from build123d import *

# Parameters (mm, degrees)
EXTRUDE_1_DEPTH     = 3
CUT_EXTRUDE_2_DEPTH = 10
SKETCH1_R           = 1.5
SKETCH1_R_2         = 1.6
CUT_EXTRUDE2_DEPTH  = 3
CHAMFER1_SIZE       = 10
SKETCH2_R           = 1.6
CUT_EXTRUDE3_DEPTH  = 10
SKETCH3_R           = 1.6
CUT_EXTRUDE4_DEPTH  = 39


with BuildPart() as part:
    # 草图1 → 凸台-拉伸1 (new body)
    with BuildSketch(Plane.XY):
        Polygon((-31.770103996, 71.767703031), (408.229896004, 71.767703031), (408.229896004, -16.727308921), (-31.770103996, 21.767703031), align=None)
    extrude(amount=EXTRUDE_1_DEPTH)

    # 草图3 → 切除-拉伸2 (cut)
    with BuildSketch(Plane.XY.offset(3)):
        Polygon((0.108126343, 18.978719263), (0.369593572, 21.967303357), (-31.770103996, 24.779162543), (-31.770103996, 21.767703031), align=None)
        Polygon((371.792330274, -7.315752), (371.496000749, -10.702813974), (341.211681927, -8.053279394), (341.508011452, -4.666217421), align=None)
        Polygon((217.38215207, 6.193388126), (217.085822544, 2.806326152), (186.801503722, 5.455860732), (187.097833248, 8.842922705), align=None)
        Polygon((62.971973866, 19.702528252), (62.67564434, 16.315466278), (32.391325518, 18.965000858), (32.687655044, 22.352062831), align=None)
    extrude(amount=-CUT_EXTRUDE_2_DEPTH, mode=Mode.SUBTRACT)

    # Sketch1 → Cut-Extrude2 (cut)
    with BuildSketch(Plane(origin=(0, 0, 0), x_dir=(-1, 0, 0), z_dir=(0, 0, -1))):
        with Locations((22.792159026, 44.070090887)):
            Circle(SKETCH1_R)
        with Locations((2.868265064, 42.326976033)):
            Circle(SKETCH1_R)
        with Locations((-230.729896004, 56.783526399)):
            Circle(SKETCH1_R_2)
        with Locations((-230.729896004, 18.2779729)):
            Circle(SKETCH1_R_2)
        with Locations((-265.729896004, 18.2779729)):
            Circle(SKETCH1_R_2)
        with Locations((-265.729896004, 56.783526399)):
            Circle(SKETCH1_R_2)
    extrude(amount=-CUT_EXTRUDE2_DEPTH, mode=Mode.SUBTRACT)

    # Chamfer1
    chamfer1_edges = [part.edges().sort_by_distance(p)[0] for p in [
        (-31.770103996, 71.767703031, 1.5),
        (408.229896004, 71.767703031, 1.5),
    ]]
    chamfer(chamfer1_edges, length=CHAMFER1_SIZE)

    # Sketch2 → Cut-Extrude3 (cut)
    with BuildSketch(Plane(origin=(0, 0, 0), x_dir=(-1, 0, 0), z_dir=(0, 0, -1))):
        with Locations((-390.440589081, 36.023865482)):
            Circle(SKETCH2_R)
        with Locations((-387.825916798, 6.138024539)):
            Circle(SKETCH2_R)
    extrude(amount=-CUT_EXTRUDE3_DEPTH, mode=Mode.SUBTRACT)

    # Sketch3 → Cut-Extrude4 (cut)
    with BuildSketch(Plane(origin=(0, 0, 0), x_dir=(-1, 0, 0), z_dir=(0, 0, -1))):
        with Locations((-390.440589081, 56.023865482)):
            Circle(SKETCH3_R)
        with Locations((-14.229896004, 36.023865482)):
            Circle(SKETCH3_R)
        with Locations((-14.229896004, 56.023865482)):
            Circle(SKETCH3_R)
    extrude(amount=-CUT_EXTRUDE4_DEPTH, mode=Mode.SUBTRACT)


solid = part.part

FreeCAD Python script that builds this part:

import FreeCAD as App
import Part
import Sketcher

V = App.Vector
Q = App.Units.Quantity


def edges_at(feature, points):
    """Names of the edges that pass closest to the given points."""
    edges = feature.Shape.Edges
    near = lambda p: min(range(len(edges)), key=lambda i: edges[i].distToShape(Part.Vertex(*p))[0])
    return sorted({f"Edge{near(p) + 1}" for p in points})

doc = App.newDocument("Part")
body = doc.addObject("PartDesign::Body", "Body")

# Sketch on XY plane
sketch1 = doc.addObject("Sketcher::SketchObject", "Sketch")
body.addObject(sketch1)
sketch1.AttachmentSupport = (doc.XY_Plane, [""])
sketch1.MapMode = "FlatFace"
sketch1.addGeometry(Part.LineSegment(V(408.229896, 71.767703, 0), V(-31.770104, 71.767703, 0)), False)
sketch1.addGeometry(Part.LineSegment(V(-31.770104, 71.767703, 0), V(-31.770104, 21.767703, 0)), False)
sketch1.addGeometry(Part.LineSegment(V(-31.770104, 21.767703, 0), V(408.229896, -16.727309, 0)), False)
sketch1.addGeometry(Part.LineSegment(V(408.229896, -16.727309, 0), V(408.229896, 71.767703, 0)), False)
sketch1.addConstraint(Sketcher.Constraint("Coincident", 0, 2, 1, 1))
sketch1.addConstraint(Sketcher.Constraint("Coincident", 1, 2, 2, 1))
sketch1.addConstraint(Sketcher.Constraint("Coincident", 2, 2, 3, 1))
sketch1.addConstraint(Sketcher.Constraint("Coincident", 3, 2, 0, 1))
sketch1.addConstraint(Sketcher.Constraint("Horizontal", 0))
sketch1.addConstraint(Sketcher.Constraint("Vertical", 1))
sketch1.addConstraint(Sketcher.Constraint("Vertical", 3))
sketch1.addConstraint(Sketcher.Constraint("DistanceX", 0, 2, 0, 1, 440.0))
sketch1.addConstraint(Sketcher.Constraint("DistanceY", 1, 2, 1, 1, 50.0))
sketch1.addConstraint(Sketcher.Constraint("Angle", 2, Q("-5 deg")))
sketch1.addConstraint(Sketcher.Constraint("DistanceY", 2, 2, -1, 1, 16.727309))
sketch1.addConstraint(Sketcher.Constraint("DistanceX", 0, 2, -1, 1, 31.770104))
pad1 = doc.addObject("PartDesign::Pad", "Pad")
body.addObject(pad1)
pad1.Profile = sketch1
pad1.Length = 3

# Sketch on XY plane
sketch2 = doc.addObject("Sketcher::SketchObject", "Sketch001")
body.addObject(sketch2)
sketch2.AttachmentSupport = (doc.XY_Plane, [""])
sketch2.MapMode = "FlatFace"
sketch2.AttachmentOffset = App.Placement(V(0, 0, 3), App.Rotation())
sketch2.addGeometry(Part.LineSegment(V(0.108126, 18.978719, 0), V(0.369594, 21.967303, 0)), False)
sketch2.addGeometry(Part.LineSegment(V(0.369594, 21.967303, 0), V(-31.770104, 24.779163, 0)), False)
sketch2.addGeometry(Part.LineSegment(V(-31.770104, 24.779163, 0), V(-31.770104, 21.767703, 0)), False)
sketch2.addGeometry(Part.LineSegment(V(-31.770104, 21.767703, 0), V(0.108126, 18.978719, 0)), False)
sketch2.addGeometry(Part.LineSegment(V(371.496001, -10.702814, 0), V(371.79233, -7.315752, 0)), False)
sketch2.addGeometry(Part.LineSegment(V(371.79233, -7.315752, 0), V(341.508011, -4.666217, 0)), False)
sketch2.addGeometry(Part.LineSegment(V(341.508011, -4.666217, 0), V(341.211682, -8.053279, 0)), False)
sketch2.addGeometry(Part.LineSegment(V(341.211682, -8.053279, 0), V(371.496001, -10.702814, 0)), False)
sketch2.addGeometry(Part.LineSegment(V(217.085823, 2.806326, 0), V(217.382152, 6.193388, 0)), False)
sketch2.addGeometry(Part.LineSegment(V(217.382152, 6.193388, 0), V(187.097833, 8.842923, 0)), False)
sketch2.addGeometry(Part.LineSegment(V(187.097833, 8.842923, 0), V(186.801504, 5.455861, 0)), False)
sketch2.addGeometry(Part.LineSegment(V(186.801504, 5.455861, 0), V(217.085823, 2.806326, 0)), False)
sketch2.addGeometry(Part.LineSegment(V(62.675644, 16.315466, 0), V(62.971974, 19.702528, 0)), False)
sketch2.addGeometry(Part.LineSegment(V(62.971974, 19.702528, 0), V(32.687655, 22.352063, 0)), False)
sketch2.addGeometry(Part.LineSegment(V(32.687655, 22.352063, 0), V(32.391326, 18.965001, 0)), False)
sketch2.addGeometry(Part.LineSegment(V(32.391326, 18.965001, 0), V(62.675644, 16.315466, 0)), False)
sketch2.addConstraint(Sketcher.Constraint("Coincident", 0, 2, 1, 1))
sketch2.addConstraint(Sketcher.Constraint("Coincident", 1, 2, 2, 1))
sketch2.addConstraint(Sketcher.Constraint("Coincident", 2, 2, 3, 1))
sketch2.addConstraint(Sketcher.Constraint("Coincident", 3, 2, 0, 1))
sketch2.addConstraint(Sketcher.Constraint("Coincident", 4, 2, 5, 1))
sketch2.addConstraint(Sketcher.Constraint("Coincident", 5, 2, 6, 1))
sketch2.addConstraint(Sketcher.Constraint("Coincident", 6, 2, 7, 1))
sketch2.addConstraint(Sketcher.Constraint("Coincident", 7, 2, 4, 1))
sketch2.addConstraint(Sketcher.Constraint("Coincident", 8, 2, 9, 1))
sketch2.addConstraint(Sketcher.Constraint("Coincident", 9, 2, 10, 1))
sketch2.addConstraint(Sketcher.Constraint("Coincident", 10, 2, 11, 1))
sketch2.addConstraint(Sketcher.Constraint("Coincident", 11, 2, 8, 1))
sketch2.addConstraint(Sketcher.Constraint("Coincident", 12, 2, 13, 1))
sketch2.addConstraint(Sketcher.Constraint("Coincident", 13, 2, 14, 1))
sketch2.addConstraint(Sketcher.Constraint("Coincident", 14, 2, 15, 1))
sketch2.addConstraint(Sketcher.Constraint("Coincident", 15, 2, 12, 1))
sketch2.addConstraint(Sketcher.Constraint("Vertical", 2))
sketch2.addConstraint(Sketcher.Constraint("Perpendicular", 0, 1))
sketch2.addConstraint(Sketcher.Constraint("Parallel", 1, 3))
sketch2.addConstraint(Sketcher.Constraint("Perpendicular", 3, 4))
sketch2.addConstraint(Sketcher.Constraint("Perpendicular", 4, 5))
sketch2.addConstraint(Sketcher.Constraint("Perpendicular", 5, 6))
sketch2.addConstraint(Sketcher.Constraint("Perpendicular", 6, 7))
sketch2.addConstraint(Sketcher.Constraint("Perpendicular", 7, 8))
sketch2.addConstraint(Sketcher.Constraint("Perpendicular", 8, 9))
sketch2.addConstraint(Sketcher.Constraint("Perpendicular", 9, 10))
sketch2.addConstraint(Sketcher.Constraint("Perpendicular", 10, 11))
sketch2.addConstraint(Sketcher.Constraint("Perpendicular", 11, 12))
sketch2.addConstraint(Sketcher.Constraint("Perpendicular", 12, 13))
sketch2.addConstraint(Sketcher.Constraint("Perpendicular", 13, 14))
sketch2.addConstraint(Sketcher.Constraint("Perpendicular", 14, 15))
sketch2.addConstraint(Sketcher.Constraint("Equal", 6, 8))
sketch2.addConstraint(Sketcher.Constraint("Equal", 7, 9))
sketch2.addConstraint(Sketcher.Constraint("Equal", 10, 12))
sketch2.addConstraint(Sketcher.Constraint("Equal", 11, 13))
sketch2.addConstraint(Sketcher.Constraint("Angle", 0, Q("85 deg")))
sketch2.addConstraint(Sketcher.Constraint("Distance", 0, 3.0))
sketch2.addConstraint(Sketcher.Constraint("Distance", 3, 32.0))
sketch2.addConstraint(Sketcher.Constraint("Distance", 4, 3.4))
sketch2.addConstraint(Sketcher.Constraint("Distance", 5, 30.4))
sketch2.addConstraint(Sketcher.Constraint("DistanceX", -1, 1, 7, 2, 371.496001))
sketch2.addConstraint(Sketcher.Constraint("DistanceY", -1, 1, 14, 2, 18.965001))
sketch2.addConstraint(Sketcher.Constraint("DistanceY", 6, 2, 3, 2, 27.031999))
sketch2.addConstraint(Sketcher.Constraint("DistanceY", 13, 2, 1, 2, 2.4271))
sketch2.addConstraint(Sketcher.Constraint("DistanceX", 3, 2, 14, 2, 32.283199))
sketch2.addConstraint(Sketcher.Constraint("DistanceY", -1, 1, 8, 2, 6.193388))
sketch2.addConstraint(Sketcher.Constraint("DistanceX", 0, 2, 6, 2, 340.842088))
sketch2.addConstraint(Sketcher.Constraint("DistanceX", 8, 2, 5, 2, 124.125859))
pocket1 = doc.addObject("PartDesign::Pocket", "Pocket")
body.addObject(pocket1)
pocket1.Profile = sketch2
pocket1.Length = 10

# Sketch on XY plane
sketch3 = doc.addObject("Sketcher::SketchObject", "Sketch002")
body.addObject(sketch3)
sketch3.AttachmentSupport = (doc.XY_Plane, [""])
sketch3.MapMode = "FlatFace"
sketch3.addGeometry(Part.Circle(V(-22.792159, 44.070091, 0), V(0, 0, 1), 1.5), False)
sketch3.addGeometry(Part.Circle(V(-2.868265, 42.326976, 0), V(0, 0, 1), 1.5), False)
sketch3.addGeometry(Part.Circle(V(230.729896, 56.783526, 0), V(0, 0, 1), 1.6), False)
sketch3.addGeometry(Part.Circle(V(230.729896, 18.277973, 0), V(0, 0, 1), 1.6), False)
sketch3.addGeometry(Part.Circle(V(265.729896, 18.277973, 0), V(0, 0, 1), 1.6), False)
sketch3.addGeometry(Part.Circle(V(265.729896, 56.783526, 0), V(0, 0, 1), 1.6), False)
sketch3.addConstraint(Sketcher.Constraint("Equal", 0, 1))
sketch3.addConstraint(Sketcher.Constraint("Equal", 2, 3))
sketch3.addConstraint(Sketcher.Constraint("Equal", 3, 4))
sketch3.addConstraint(Sketcher.Constraint("Equal", 4, 5))
sketch3.addConstraint(Sketcher.Constraint("Horizontal", 3, 3, 4, 3))
sketch3.addConstraint(Sketcher.Constraint("Horizontal", 2, 3, 5, 3))
sketch3.addConstraint(Sketcher.Constraint("Vertical", 2, 3, 3, 3))
sketch3.addConstraint(Sketcher.Constraint("Vertical", 4, 3, 5, 3))
sketch3.addConstraint(Sketcher.Constraint("Diameter", 0, 3.0))
sketch3.addConstraint(Sketcher.Constraint("Diameter", 2, 3.2))
sketch3.addConstraint(Sketcher.Constraint("DistanceX", 3, 3, 4, 3, 35.0))
sketch3.addConstraint(Sketcher.Constraint("DistanceX", 0, 3, -1, 1, 22.792159))
sketch3.addConstraint(Sketcher.Constraint("DistanceY", -1, 1, 0, 3, 44.070091))
sketch3.addConstraint(Sketcher.Constraint("DistanceX", 1, 3, 2, 3, 233.598161))
sketch3.addConstraint(Sketcher.Constraint("DistanceY", 1, 3, 2, 3, 14.45655))
sketch3.addConstraint(Sketcher.Constraint("DistanceX", 1, 3, -1, 1, 2.868265))
sketch3.addConstraint(Sketcher.Constraint("DistanceY", -1, 1, 1, 3, 42.326976))
sketch3.addConstraint(Sketcher.Constraint("DistanceY", -1, 1, 3, 3, 18.277973))
pocket2 = doc.addObject("PartDesign::Pocket", "Pocket001")
body.addObject(pocket2)
pocket2.Profile = sketch3
pocket2.Length = 3
pocket2.Reversed = True
doc.recompute()

chamfer = doc.addObject("PartDesign::Chamfer", "Chamfer")
body.addObject(chamfer)
chamfer.Base = (pocket2, edges_at(pocket2, [(-31.77, 71.768, 1.5), (408.23, 71.768, 1.5)]))
chamfer.Size = 10

# Sketch on XY plane
sketch4 = doc.addObject("Sketcher::SketchObject", "Sketch003")
body.addObject(sketch4)
sketch4.AttachmentSupport = (doc.XY_Plane, [""])
sketch4.MapMode = "FlatFace"
sketch4.addGeometry(Part.Circle(V(390.440589, 36.023865, 0), V(0, 0, 1), 1.6), False)
sketch4.addGeometry(Part.Circle(V(387.825917, 6.138025, 0), V(0, 0, 1), 1.6), False)
sketch4.addConstraint(Sketcher.Constraint("Equal", 0, 1))
sketch4.addConstraint(Sketcher.Constraint("Diameter", 0, 3.2))
sketch4.addConstraint(Sketcher.Constraint("DistanceX", -1, 1, 0, 3, 390.440589))
sketch4.addConstraint(Sketcher.Constraint("DistanceY", 1, 3, 0, 3, 29.885841))
sketch4.addConstraint(Sketcher.Constraint("DistanceY", -1, 1, 0, 3, 36.023865))
sketch4.addConstraint(Sketcher.Constraint("DistanceX", -1, 1, 1, 3, 387.825917))
pocket3 = doc.addObject("PartDesign::Pocket", "Pocket002")
body.addObject(pocket3)
pocket3.Profile = sketch4
pocket3.Length = 10
pocket3.Reversed = True

# Sketch on XY plane
sketch5 = doc.addObject("Sketcher::SketchObject", "Sketch004")
body.addObject(sketch5)
sketch5.AttachmentSupport = (doc.XY_Plane, [""])
sketch5.MapMode = "FlatFace"
sketch5.addGeometry(Part.Circle(V(390.440589, 56.023865, 0), V(0, 0, 1), 1.6), False)
sketch5.addGeometry(Part.Circle(V(14.229896, 36.023865, 0), V(0, 0, 1), 1.6), False)
sketch5.addGeometry(Part.Circle(V(14.229896, 56.023865, 0), V(0, 0, 1), 1.6), False)
sketch5.addConstraint(Sketcher.Constraint("Equal", 0, 1))
sketch5.addConstraint(Sketcher.Constraint("Equal", 1, 2))
sketch5.addConstraint(Sketcher.Constraint("Horizontal", 0, 3, 2, 3))
sketch5.addConstraint(Sketcher.Constraint("Vertical", 1, 3, 2, 3))
sketch5.addConstraint(Sketcher.Constraint("Diameter", 0, 3.2))
sketch5.addConstraint(Sketcher.Constraint("DistanceY", 1, 3, 0, 3, 20.0))
sketch5.addConstraint(Sketcher.Constraint("DistanceX", -1, 1, 0, 3, 390.440589))
sketch5.addConstraint(Sketcher.Constraint("DistanceY", -1, 1, 0, 3, 56.023865))
sketch5.addConstraint(Sketcher.Constraint("DistanceX", -1, 1, 1, 3, 14.229896))
pocket4 = doc.addObject("PartDesign::Pocket", "Pocket003")
body.addObject(pocket4)
pocket4.Profile = sketch5
pocket4.Length = 39
pocket4.Reversed = True

doc.recompute()
